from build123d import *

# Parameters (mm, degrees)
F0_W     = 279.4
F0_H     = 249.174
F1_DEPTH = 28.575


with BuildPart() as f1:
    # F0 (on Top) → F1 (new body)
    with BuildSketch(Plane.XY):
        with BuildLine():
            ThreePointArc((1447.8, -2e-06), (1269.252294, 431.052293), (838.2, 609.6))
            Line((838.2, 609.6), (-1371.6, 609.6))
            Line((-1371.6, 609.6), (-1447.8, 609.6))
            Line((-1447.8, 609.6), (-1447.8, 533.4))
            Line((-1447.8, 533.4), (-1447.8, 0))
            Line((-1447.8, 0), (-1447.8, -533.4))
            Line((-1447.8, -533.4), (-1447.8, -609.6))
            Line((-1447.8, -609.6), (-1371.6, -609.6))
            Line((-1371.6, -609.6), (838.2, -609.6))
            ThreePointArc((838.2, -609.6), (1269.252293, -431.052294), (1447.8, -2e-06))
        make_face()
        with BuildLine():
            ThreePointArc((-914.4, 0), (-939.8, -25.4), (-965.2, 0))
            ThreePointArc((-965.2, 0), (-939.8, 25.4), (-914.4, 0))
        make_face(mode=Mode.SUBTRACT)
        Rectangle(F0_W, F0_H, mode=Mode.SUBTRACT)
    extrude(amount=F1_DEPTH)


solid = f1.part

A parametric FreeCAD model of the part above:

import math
import FreeCAD as App
import Part
import Sketcher
from FreeCAD import Vector
Q = App.Units.Quantity


def add_polygon(sketch, points):
    """Adds a closed chain of lines whose ends are joined by coincident constraints."""
    first, n = sketch.GeometryCount, len(points)
    for a, b in zip(points, points[1:] + points[:1]):
        sketch.addGeometry(Part.LineSegment(App.Vector(*a, 0), App.Vector(*b, 0)), False)
    for i in range(n):
        sketch.addConstraint(Sketcher.Constraint("Coincident", first + i, 2, first + (i + 1) % n, 1))

doc = App.newDocument("Part")
body = doc.addObject("PartDesign::Body", "Body")

# Sketch on XY plane
sketch1 = body.newObject("Sketcher::SketchObject", "Sketch")
sketch1.AttachmentSupport = (doc.getObject("XY_Plane"), [""])
sketch1.MapMode = "FlatFace"
sketch1.addGeometry(Part.ArcOfCircle(Part.Circle(Vector(838, 0, 0), Vector(0, 0, 1), 610), math.radians(0), math.radians(90)), False)  # 0
sketch1.addGeometry(Part.LineSegment(Vector(838, 610, 0), Vector(-1448, 610, 0)), False)  # 1
sketch1.addGeometry(Part.LineSegment(Vector(-1448, 610, 0), Vector(-1448, -610, 0)), False)  # 2
sketch1.addGeometry(Part.LineSegment(Vector(-1448, -610, 0), Vector(838, -610, 0)), False)  # 3
sketch1.addGeometry(Part.ArcOfCircle(Part.Circle(Vector(838, 0, 0), Vector(0, 0, 1), 610), math.radians(-90), math.radians(0)), False)  # 4
sketch1.addGeometry(Part.Circle(Vector(-940, 0, 0), Vector(0, 0, 1), 25), False)  # 5
add_polygon(sketch1, [(140, -125), (-140, -125), (-140, 125), (140, 125)])  # lines 6-9
sketch1.addConstraint([
    Sketcher.Constraint("Tangent", 0, 2, 1, 1),
    Sketcher.Constraint("Coincident", 1, 2, 2, 1),
    Sketcher.Constraint("Coincident", 2, 2, 3, 1),
    Sketcher.Constraint("Tangent", 3, 2, 4, 1),
    Sketcher.Constraint("Coincident", 4, 2, 0, 1),
    Sketcher.Constraint("Horizontal", 1),
    Sketcher.Constraint("Vertical", 2),
    Sketcher.Constraint("Horizontal", 3),
    Sketcher.Constraint("Horizontal", 6),
    Sketcher.Constraint("Vertical", 7),
    Sketcher.Constraint("Horizontal", 8),
    Sketcher.Constraint("Vertical", 9),
    Sketcher.Constraint("Coincident", 4, 3, 0, 3),
    Sketcher.Constraint("Symmetric", 6, 2, 8, 2, -1, 1),
    Sketcher.Constraint("PointOnObject", 0, 3, -1),
    Sketcher.Constraint("PointOnObject", 5, 3, -1),
    Sketcher.Constraint("Horizontal", 0, 3, 4, 2),
    Sketcher.Constraint("Diameter", 5, Q("2 in")),
    Sketcher.Constraint("Radius", 0, Q("24 in")),
    Sketcher.Constraint("DistanceX", 1, 2, 1, 1, Q("90 in")),
    Sketcher.Constraint("DistanceX", 6, 2, 6, 1, Q("11 in")),
    Sketcher.Constraint("DistanceX", -1, 1, 0, 3, Q("33 in")),
    Sketcher.Constraint("DistanceX", 5, 3, -1, 1, Q("37 in")),
    Sketcher.Constraint("DistanceY", 7, 1, 7, 2, Q("9.81 in")),
])
pad1 = body.newObject("PartDesign::Pad", "Pad")
pad1.Profile = sketch1
pad1.Length = Q("1.125 in")

doc.recompute()
